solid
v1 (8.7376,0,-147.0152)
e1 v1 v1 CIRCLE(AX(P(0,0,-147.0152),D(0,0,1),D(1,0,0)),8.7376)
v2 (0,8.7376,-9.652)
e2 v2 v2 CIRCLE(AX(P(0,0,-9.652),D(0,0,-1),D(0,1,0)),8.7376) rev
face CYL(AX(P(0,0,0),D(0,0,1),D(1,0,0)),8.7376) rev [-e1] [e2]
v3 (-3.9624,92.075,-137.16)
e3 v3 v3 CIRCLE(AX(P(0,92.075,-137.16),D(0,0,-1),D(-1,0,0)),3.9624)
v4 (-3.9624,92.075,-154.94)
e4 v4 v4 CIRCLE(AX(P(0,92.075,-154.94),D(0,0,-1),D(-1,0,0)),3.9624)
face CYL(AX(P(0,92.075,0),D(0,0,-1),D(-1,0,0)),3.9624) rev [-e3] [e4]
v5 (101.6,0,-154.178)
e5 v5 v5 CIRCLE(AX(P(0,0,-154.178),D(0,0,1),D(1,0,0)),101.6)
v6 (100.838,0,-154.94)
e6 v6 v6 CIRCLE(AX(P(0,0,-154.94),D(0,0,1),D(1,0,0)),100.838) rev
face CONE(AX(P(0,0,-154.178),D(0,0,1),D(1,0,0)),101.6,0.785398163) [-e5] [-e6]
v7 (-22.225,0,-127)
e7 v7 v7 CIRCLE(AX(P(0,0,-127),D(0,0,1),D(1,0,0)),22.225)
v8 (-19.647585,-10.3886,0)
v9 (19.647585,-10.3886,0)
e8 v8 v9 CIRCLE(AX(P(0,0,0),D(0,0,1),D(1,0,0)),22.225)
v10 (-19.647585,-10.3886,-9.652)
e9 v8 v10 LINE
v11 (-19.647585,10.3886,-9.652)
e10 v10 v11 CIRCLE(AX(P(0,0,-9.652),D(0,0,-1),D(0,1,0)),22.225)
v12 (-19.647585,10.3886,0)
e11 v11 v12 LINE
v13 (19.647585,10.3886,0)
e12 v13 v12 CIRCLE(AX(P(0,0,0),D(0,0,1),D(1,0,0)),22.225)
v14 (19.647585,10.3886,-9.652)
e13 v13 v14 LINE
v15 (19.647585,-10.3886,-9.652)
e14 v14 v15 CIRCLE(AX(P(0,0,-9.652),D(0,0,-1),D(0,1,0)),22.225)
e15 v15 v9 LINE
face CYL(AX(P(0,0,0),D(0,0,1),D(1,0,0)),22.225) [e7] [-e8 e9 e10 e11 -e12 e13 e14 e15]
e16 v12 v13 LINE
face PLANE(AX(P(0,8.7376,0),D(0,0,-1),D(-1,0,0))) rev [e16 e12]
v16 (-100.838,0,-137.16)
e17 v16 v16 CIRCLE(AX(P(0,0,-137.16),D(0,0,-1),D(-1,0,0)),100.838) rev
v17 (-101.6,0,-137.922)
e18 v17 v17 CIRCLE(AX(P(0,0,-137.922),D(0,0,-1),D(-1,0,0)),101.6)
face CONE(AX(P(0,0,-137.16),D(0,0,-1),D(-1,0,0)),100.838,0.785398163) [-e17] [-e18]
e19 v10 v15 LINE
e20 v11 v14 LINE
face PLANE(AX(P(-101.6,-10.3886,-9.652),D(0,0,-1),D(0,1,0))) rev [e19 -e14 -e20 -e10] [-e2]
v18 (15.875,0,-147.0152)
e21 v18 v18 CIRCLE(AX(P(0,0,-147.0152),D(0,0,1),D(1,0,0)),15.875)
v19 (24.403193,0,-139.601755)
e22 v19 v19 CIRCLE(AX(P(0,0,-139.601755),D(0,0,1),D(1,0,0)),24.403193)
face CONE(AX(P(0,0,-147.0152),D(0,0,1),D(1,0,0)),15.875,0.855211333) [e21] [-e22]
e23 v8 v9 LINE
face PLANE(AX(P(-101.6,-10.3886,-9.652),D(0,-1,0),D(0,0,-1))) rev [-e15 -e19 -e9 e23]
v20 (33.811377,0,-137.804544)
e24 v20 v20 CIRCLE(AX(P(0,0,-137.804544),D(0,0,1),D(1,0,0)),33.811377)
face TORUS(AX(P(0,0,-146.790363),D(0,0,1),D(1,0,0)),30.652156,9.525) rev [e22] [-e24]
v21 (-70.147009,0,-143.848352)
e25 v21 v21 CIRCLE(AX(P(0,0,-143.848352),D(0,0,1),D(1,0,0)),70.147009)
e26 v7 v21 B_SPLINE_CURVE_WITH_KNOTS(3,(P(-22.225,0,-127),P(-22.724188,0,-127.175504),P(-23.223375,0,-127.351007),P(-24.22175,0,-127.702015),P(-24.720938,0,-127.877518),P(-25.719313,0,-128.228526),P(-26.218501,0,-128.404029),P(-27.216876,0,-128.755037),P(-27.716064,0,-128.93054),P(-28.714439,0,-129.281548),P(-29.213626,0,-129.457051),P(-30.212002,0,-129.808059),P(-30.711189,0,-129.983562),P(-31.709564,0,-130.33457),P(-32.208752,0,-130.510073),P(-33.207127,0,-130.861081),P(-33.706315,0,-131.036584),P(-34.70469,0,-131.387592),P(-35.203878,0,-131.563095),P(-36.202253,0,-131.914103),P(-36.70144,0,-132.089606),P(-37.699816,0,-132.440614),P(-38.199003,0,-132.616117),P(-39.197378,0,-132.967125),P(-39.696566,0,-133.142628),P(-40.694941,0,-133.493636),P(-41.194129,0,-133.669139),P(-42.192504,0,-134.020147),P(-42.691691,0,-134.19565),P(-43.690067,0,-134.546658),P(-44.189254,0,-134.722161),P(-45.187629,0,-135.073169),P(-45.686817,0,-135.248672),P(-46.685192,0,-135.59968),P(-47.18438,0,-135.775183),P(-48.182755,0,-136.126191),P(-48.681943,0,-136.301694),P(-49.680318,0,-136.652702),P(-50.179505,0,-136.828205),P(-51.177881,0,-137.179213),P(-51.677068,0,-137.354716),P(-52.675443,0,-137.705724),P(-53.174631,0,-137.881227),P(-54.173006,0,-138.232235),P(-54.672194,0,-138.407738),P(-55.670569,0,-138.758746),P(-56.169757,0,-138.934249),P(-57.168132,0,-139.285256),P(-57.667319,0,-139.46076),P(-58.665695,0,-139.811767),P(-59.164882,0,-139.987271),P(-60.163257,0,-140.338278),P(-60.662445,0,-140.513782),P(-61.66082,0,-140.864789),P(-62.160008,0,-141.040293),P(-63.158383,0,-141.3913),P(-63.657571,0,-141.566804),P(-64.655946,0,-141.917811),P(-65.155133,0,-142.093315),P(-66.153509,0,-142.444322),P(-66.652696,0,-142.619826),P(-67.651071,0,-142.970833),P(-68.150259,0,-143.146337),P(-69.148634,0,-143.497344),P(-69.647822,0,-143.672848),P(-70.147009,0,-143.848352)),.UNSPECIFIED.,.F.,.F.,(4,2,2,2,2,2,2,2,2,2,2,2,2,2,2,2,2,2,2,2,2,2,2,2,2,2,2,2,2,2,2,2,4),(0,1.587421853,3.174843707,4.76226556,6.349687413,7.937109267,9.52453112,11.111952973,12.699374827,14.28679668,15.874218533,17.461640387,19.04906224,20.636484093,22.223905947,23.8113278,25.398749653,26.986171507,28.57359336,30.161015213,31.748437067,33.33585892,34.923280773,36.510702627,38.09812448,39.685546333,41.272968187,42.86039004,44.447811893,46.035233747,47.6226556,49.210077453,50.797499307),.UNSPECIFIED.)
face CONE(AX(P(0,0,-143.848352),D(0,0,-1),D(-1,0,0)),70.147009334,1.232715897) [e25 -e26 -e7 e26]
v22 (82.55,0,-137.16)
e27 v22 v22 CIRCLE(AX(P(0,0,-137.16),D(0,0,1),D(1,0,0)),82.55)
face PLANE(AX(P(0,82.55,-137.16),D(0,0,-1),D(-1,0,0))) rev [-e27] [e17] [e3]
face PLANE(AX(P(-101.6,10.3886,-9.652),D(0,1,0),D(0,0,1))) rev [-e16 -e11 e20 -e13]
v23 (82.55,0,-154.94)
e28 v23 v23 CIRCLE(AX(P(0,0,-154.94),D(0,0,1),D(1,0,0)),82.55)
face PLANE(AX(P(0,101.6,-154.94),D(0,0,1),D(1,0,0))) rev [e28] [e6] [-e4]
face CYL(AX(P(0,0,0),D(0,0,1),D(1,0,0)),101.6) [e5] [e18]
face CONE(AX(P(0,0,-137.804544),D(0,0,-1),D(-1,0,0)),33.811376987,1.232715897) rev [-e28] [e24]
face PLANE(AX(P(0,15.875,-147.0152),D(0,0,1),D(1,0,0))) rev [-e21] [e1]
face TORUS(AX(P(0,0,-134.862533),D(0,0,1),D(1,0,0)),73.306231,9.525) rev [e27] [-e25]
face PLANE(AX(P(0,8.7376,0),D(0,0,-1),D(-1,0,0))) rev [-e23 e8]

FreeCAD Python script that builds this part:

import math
import FreeCAD as App
import Part
import Sketcher
Q = App.Units.Quantity


def edges_at(feature, points):
    """Names of the edges that pass closest to the given points."""
    edges = feature.Shape.Edges
    near = lambda p: min(range(len(edges)), key=lambda i: edges[i].distToShape(Part.Vertex(*p))[0])
    return sorted({f"Edge{near(p) + 1}" for p in points})

doc = App.newDocument("Part")
params = doc.addObject("Spreadsheet::Sheet", "Params")
for row, (alias, value) in enumerate([
    ("sketch1_height", "5 in"),
    ("sketch1_height2", "0.7 in"),
    ("sketch1_radius", "0.375 in"),
    ("sketch1_width", "0.75 in"),
    ("sketch1_width2", "0.531 in"),
    ("revolution_angle", "360 deg"),
    ("chamfer_size", "0.03 in"),
    ("sketch2_height", "0.38 in"),
    ("sketch2_width", "0.818 in"),
    ("sketch3_diameter", "0.312 in"),
], start=1):
    params.set(f"A{row}", alias)
    params.set(f"B{row}", "=" + value)
    params.setAlias(f"B{row}", alias)

body = doc.addObject("PartDesign::Body", "Body")

sketch1 = doc.addObject("Sketcher::SketchObject", "Sketch")
body.addObject(sketch1)
sketch1.AttachmentSupport = (doc.YZ_Plane, [""])
sketch1.MapMode = "FlatFace"
sketch1.addGeometry([
    Part.LineSegment(App.Vector(22, 0, 0), App.Vector(9, 0, 0)),
    Part.LineSegment(App.Vector(9, 0, 0), App.Vector(9, -147, 0)),
    Part.LineSegment(App.Vector(9, -147, 0), App.Vector(16, -147, 0)),
    Part.LineSegment(App.Vector(16, -147, 0), App.Vector(24, -140, 0)),
    Part.ArcOfCircle(Part.Circle(App.Vector(31, -147, 0), App.Vector(0, 0, 1), 10), math.radians(71), math.radians(131)),
    Part.LineSegment(App.Vector(34, -138, 0), App.Vector(83, -155, 0)),
    Part.LineSegment(App.Vector(83, -155, 0), App.Vector(102, -155, 0)),
    Part.LineSegment(App.Vector(102, -155, 0), App.Vector(102, -137, 0)),
    Part.LineSegment(App.Vector(102, -137, 0), App.Vector(83, -137, 0)),
    Part.ArcOfCircle(Part.Circle(App.Vector(73, -135, 0), App.Vector(0, 0, 1), 10), math.radians(-109), math.radians(-14)),
    Part.LineSegment(App.Vector(70, -144, 0), App.Vector(22, -127, 0)),
    Part.LineSegment(App.Vector(22, -127, 0), App.Vector(22, 0, 0)),
], False)
sketch1.addConstraint([
    Sketcher.Constraint("Coincident", 0, 2, 1, 1),
    Sketcher.Constraint("Coincident", 1, 2, 2, 1),
    Sketcher.Constraint("Coincident", 2, 2, 3, 1),
    Sketcher.Constraint("Tangent", 3, 2, 4, 2),
    Sketcher.Constraint("Tangent", 4, 1, 5, 1),
    Sketcher.Constraint("Coincident", 5, 2, 6, 1),
    Sketcher.Constraint("Coincident", 6, 2, 7, 1),
    Sketcher.Constraint("Coincident", 7, 2, 8, 1),
    Sketcher.Constraint("Coincident", 8, 2, 9, 2),
    Sketcher.Constraint("Tangent", 9, 1, 10, 1),
    Sketcher.Constraint("Coincident", 10, 2, 11, 1),
    Sketcher.Constraint("Coincident", 11, 2, 0, 1),
    Sketcher.Constraint("Horizontal", 0),
    Sketcher.Constraint("Vertical", 1),
    Sketcher.Constraint("Horizontal", 2),
    Sketcher.Constraint("Horizontal", 6),
    Sketcher.Constraint("Vertical", 7),
    Sketcher.Constraint("Horizontal", 8),
    Sketcher.Constraint("Vertical", 11),
    Sketcher.Constraint("Equal", 4, 9),
    Sketcher.Constraint("PointOnObject", 0, 2, -1),
    Sketcher.Constraint("Parallel", 5, 10),
    Sketcher.Constraint("Vertical", 5, 2, 8, 2),
    Sketcher.Constraint("DistanceY", 11, 1, 11, 2, Q("5 in")),
    Sketcher.Constraint("DistanceY", 7, 1, 7, 2, Q("0.7 in")),
    Sketcher.Constraint("DistanceX", -1, 1, 6, 2, Q("4 in")),
    Sketcher.Constraint("Angle", 3, Q("41 deg")),
    Sketcher.Constraint("Radius", 4, Q("0.375 in")),
    Sketcher.Constraint("DistanceX", 6, 1, 6, 2, Q("0.75 in")),
    Sketcher.Constraint("DistanceY", 5, 2, -1, 1, Q("6.1 in")),
    Sketcher.Constraint("DistanceX", 0, 2, 0, 1, Q("0.531 in")),
    Sketcher.Constraint("DistanceX", 2, 1, 2, 2, Q("0.281 in")),
    Sketcher.Constraint("DistanceY", 1, 2, 1, 1, Q("5.788 in")),
    Sketcher.Constraint("DistanceX", -1, 1, 0, 2, Q("0.344 in")),
    Sketcher.Constraint("Distance", 10, 50.797499),
])
sketch1.setExpression("Constraints[23]", "Params.sketch1_height")
sketch1.setExpression("Constraints[24]", "Params.sketch1_height2")
sketch1.setExpression("Constraints[27]", "Params.sketch1_radius")
sketch1.setExpression("Constraints[28]", "Params.sketch1_width")
sketch1.setExpression("Constraints[30]", "Params.sketch1_width2")
revolution = doc.addObject("PartDesign::Revolution", "Revolution")
body.addObject(revolution)
revolution.Profile = sketch1
revolution.ReferenceAxis = (sketch1, ["V_Axis"])
revolution.setExpression("Angle", "Params.revolution_angle")
doc.recompute()

chamfer = doc.addObject("PartDesign::Chamfer", "Chamfer")
body.addObject(chamfer)
chamfer.Base = (revolution, edges_at(revolution, [(-101.6, 0, -154.94), (-101.6, 0, -137.16)]))
chamfer.setExpression("Size", "Params.chamfer_size")

sketch2 = doc.addObject("Sketcher::SketchObject", "Sketch001")
body.addObject(sketch2)
sketch2.AttachmentSupport = (doc.YZ_Plane, [""])
sketch2.MapMode = "FlatFace"
sketch2.addGeometry([
    Part.LineSegment(App.Vector(10, 0, 0), App.Vector(-10, 0, 0)),
    Part.LineSegment(App.Vector(-10, 0, 0), App.Vector(-10, -10, 0)),
    Part.LineSegment(App.Vector(-10, -10, 0), App.Vector(10, -10, 0)),
    Part.LineSegment(App.Vector(10, -10, 0), App.Vector(10, 0, 0)),
], False)
sketch2.addConstraint([
    Sketcher.Constraint("Coincident", 0, 2, 1, 1),
    Sketcher.Constraint("Coincident", 1, 2, 2, 1),
    Sketcher.Constraint("Coincident", 2, 2, 3, 1),
    Sketcher.Constraint("Coincident", 3, 2, 0, 1),
    Sketcher.Constraint("Horizontal", 0),
    Sketcher.Constraint("Vertical", 1),
    Sketcher.Constraint("Horizontal", 2),
    Sketcher.Constraint("Vertical", 3),
    Sketcher.Constraint("Symmetric", 0, 2, 3, 2, -1, 1),
    Sketcher.Constraint("DistanceY", 1, 2, 1, 1, Q("0.38 in")),
    Sketcher.Constraint("DistanceX", 0, 2, 0, 1, Q("0.818 in")),
])
sketch2.setExpression("Constraints[9]", "Params.sketch2_height")
sketch2.setExpression("Constraints[10]", "Params.sketch2_width")
pocket1 = doc.addObject("PartDesign::Pocket", "Pocket")
body.addObject(pocket1)
pocket1.Profile = sketch2
pocket1.Type = "ThroughAll"
pocket1.Midplane = True

sketch3 = doc.addObject("Sketcher::SketchObject", "Sketch002")
body.addObject(sketch3)
sketch3.AttachmentSupport = (doc.XY_Plane, [""])
sketch3.MapMode = "FlatFace"
sketch3.AttachmentOffset = App.Placement(App.Vector(0, 0, -6.1 * 25.4), App.Rotation())
sketch3.addGeometry(Part.Circle(App.Vector(0, 92.1, 0), App.Vector(0, 0, 1), 4), False)
sketch3.addConstraint([
    Sketcher.Constraint("PointOnObject", 0, 3, -2),
    Sketcher.Constraint("Diameter", 0, Q("0.312 in")),
    Sketcher.Constraint("DistanceY", -1, 1, 0, 3, Q("3.625 in")),
])
sketch3.setExpression("Constraints[1]", "Params.sketch3_diameter")
pocket2 = doc.addObject("PartDesign::Pocket", "Pocket001")
body.addObject(pocket2)
pocket2.Profile = sketch3
pocket2.Type = "ThroughAll"
pocket2.Reversed = True

doc.recompute()
